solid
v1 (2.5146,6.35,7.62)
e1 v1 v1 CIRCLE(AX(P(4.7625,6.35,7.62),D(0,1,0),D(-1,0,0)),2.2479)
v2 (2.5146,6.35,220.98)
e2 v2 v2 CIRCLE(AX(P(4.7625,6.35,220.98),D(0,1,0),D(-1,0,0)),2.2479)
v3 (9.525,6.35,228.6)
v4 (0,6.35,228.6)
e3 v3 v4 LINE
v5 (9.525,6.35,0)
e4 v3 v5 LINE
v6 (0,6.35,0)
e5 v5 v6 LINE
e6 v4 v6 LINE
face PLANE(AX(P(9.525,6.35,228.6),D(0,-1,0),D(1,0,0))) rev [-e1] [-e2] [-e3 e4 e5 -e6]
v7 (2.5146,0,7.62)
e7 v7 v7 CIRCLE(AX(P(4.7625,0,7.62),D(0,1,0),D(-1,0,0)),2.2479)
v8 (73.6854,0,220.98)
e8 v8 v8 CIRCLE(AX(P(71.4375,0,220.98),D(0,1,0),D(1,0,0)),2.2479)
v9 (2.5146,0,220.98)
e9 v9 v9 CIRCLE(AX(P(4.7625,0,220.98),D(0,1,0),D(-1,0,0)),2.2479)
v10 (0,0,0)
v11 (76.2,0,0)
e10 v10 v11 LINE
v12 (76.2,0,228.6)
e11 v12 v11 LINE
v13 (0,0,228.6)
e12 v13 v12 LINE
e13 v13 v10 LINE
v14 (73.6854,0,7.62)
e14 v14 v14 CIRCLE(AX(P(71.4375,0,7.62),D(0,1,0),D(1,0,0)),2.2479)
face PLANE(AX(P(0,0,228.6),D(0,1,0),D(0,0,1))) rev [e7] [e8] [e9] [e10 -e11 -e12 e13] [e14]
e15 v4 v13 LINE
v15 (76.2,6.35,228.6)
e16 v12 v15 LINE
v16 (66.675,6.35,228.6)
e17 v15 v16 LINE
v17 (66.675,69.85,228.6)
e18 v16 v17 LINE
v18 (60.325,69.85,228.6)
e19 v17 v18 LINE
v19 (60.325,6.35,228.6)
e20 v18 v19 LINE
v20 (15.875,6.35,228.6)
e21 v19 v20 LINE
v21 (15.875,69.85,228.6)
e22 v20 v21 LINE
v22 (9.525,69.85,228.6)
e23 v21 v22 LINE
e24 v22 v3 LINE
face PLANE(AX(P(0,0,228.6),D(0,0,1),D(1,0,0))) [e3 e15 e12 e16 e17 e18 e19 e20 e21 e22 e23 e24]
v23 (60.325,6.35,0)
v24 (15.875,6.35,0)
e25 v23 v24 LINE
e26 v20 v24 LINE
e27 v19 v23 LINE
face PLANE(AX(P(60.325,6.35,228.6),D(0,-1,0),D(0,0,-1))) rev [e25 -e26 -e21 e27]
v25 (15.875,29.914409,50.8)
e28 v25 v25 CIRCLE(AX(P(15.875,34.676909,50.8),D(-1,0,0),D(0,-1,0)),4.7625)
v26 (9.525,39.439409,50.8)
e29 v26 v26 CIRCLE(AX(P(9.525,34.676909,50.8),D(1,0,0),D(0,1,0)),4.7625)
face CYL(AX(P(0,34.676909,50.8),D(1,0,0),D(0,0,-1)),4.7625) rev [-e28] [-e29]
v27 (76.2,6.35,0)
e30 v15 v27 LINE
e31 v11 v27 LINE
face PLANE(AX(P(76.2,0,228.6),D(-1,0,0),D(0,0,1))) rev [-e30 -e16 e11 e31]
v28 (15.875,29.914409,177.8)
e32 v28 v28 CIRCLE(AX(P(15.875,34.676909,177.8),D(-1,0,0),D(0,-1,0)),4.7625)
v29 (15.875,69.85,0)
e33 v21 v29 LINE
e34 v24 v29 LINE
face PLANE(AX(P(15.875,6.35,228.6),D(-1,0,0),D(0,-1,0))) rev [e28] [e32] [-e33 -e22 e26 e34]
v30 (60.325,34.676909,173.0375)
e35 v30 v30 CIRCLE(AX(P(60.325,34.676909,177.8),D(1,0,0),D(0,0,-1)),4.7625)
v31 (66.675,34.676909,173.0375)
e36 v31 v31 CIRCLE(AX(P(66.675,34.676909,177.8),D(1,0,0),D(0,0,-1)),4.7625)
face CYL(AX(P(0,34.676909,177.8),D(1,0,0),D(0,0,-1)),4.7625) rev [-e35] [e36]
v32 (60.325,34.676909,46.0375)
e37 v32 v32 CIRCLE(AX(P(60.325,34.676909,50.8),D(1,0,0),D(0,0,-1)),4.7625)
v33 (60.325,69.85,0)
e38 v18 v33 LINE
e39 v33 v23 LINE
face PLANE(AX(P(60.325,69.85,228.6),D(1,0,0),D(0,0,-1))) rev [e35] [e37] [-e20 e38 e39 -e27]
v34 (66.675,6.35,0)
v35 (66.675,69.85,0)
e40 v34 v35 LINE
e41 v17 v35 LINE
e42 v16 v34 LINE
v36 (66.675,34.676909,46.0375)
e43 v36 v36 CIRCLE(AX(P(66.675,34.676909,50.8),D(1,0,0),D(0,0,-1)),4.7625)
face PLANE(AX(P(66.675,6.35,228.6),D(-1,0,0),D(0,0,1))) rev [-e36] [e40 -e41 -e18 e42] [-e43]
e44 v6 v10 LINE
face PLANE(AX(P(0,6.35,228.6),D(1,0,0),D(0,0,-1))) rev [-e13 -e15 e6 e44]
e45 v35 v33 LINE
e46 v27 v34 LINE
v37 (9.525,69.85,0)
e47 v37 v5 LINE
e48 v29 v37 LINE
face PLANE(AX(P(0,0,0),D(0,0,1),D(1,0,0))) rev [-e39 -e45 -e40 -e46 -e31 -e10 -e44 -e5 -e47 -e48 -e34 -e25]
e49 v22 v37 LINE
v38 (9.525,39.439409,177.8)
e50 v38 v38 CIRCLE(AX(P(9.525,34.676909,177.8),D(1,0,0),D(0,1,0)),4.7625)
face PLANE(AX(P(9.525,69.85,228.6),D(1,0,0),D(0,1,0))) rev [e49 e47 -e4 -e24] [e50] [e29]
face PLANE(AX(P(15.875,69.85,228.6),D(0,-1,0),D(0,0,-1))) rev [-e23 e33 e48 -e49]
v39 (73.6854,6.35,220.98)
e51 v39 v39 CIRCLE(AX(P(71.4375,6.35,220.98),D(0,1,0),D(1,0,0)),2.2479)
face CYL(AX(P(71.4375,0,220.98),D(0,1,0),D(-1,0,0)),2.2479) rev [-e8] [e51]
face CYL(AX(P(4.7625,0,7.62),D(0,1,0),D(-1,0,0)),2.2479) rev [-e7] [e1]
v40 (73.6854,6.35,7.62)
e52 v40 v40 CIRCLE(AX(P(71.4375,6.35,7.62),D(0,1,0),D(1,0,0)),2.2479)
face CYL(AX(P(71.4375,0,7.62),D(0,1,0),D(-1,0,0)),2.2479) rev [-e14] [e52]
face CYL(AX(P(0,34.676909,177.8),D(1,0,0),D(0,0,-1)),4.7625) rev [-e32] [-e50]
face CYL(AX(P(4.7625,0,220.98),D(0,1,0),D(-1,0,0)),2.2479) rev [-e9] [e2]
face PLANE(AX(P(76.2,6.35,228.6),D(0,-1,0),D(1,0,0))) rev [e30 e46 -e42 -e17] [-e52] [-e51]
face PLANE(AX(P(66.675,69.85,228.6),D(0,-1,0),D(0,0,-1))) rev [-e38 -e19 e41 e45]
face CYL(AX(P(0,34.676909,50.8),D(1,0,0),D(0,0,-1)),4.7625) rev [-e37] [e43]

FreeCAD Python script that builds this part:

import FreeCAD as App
import Part
import Sketcher
from FreeCAD import Vector
Q = App.Units.Quantity

doc = App.newDocument("Part")
body = doc.addObject("PartDesign::Body", "Body")

# Sketch on XY plane
sketch1 = doc.addObject("Sketcher::SketchObject", "Sketch")
body.addObject(sketch1)
sketch1.AttachmentSupport = (doc.XY_Plane, [""])
sketch1.MapMode = "FlatFace"
sketch1.addGeometry(Part.LineSegment(Vector(0, 0, 0), Vector(76, 0, 0)), False)
sketch1.addGeometry(Part.LineSegment(Vector(76, 0, 0), Vector(76, 6, 0)), False)
sketch1.addGeometry(Part.LineSegment(Vector(76, 6, 0), Vector(67, 6, 0)), False)
sketch1.addGeometry(Part.LineSegment(Vector(67, 6, 0), Vector(67, 70, 0)), False)
sketch1.addGeometry(Part.LineSegment(Vector(67, 70, 0), Vector(60, 70, 0)), False)
sketch1.addGeometry(Part.LineSegment(Vector(60, 70, 0), Vector(60, 6, 0)), False)
sketch1.addGeometry(Part.LineSegment(Vector(60, 6, 0), Vector(16, 6, 0)), False)
sketch1.addGeometry(Part.LineSegment(Vector(16, 6, 0), Vector(16, 70, 0)), False)
sketch1.addGeometry(Part.LineSegment(Vector(16, 70, 0), Vector(10, 70, 0)), False)
sketch1.addGeometry(Part.LineSegment(Vector(10, 70, 0), Vector(10, 6, 0)), False)
sketch1.addGeometry(Part.LineSegment(Vector(10, 6, 0), Vector(0, 6, 0)), False)
sketch1.addGeometry(Part.LineSegment(Vector(0, 6, 0), Vector(0, 0, 0)), False)
sketch1.addConstraint(Sketcher.Constraint("Coincident", 0, 2, 1, 1))
sketch1.addConstraint(Sketcher.Constraint("Coincident", 1, 2, 2, 1))
sketch1.addConstraint(Sketcher.Constraint("Coincident", 2, 2, 3, 1))
sketch1.addConstraint(Sketcher.Constraint("Coincident", 3, 2, 4, 1))
sketch1.addConstraint(Sketcher.Constraint("Coincident", 4, 2, 5, 1))
sketch1.addConstraint(Sketcher.Constraint("Coincident", 5, 2, 6, 1))
sketch1.addConstraint(Sketcher.Constraint("Coincident", 6, 2, 7, 1))
sketch1.addConstraint(Sketcher.Constraint("Coincident", 7, 2, 8, 1))
sketch1.addConstraint(Sketcher.Constraint("Coincident", 8, 2, 9, 1))
sketch1.addConstraint(Sketcher.Constraint("Coincident", 9, 2, 10, 1))
sketch1.addConstraint(Sketcher.Constraint("Coincident", 10, 2, 11, 1))
sketch1.addConstraint(Sketcher.Constraint("Coincident", 11, 2, 0, 1))
sketch1.addConstraint(Sketcher.Constraint("Horizontal", 0))
sketch1.addConstraint(Sketcher.Constraint("Vertical", 1))
sketch1.addConstraint(Sketcher.Constraint("Horizontal", 2))
sketch1.addConstraint(Sketcher.Constraint("Vertical", 3))
sketch1.addConstraint(Sketcher.Constraint("Horizontal", 4))
sketch1.addConstraint(Sketcher.Constraint("Vertical", 5))
sketch1.addConstraint(Sketcher.Constraint("Horizontal", 6))
sketch1.addConstraint(Sketcher.Constraint("Vertical", 7))
sketch1.addConstraint(Sketcher.Constraint("Horizontal", 8))
sketch1.addConstraint(Sketcher.Constraint("Vertical", 9))
sketch1.addConstraint(Sketcher.Constraint("Horizontal", 10))
sketch1.addConstraint(Sketcher.Constraint("Vertical", 11))
sketch1.addConstraint(Sketcher.Constraint("Coincident", 11, 2, -1, 1))
sketch1.addConstraint(Sketcher.Constraint("Horizontal", 2, 2, 5, 2))
sketch1.addConstraint(Sketcher.Constraint("Horizontal", 4, 2, 7, 2))
sketch1.addConstraint(Sketcher.Constraint("Horizontal", 6, 2, 9, 2))
sketch1.addConstraint(Sketcher.Constraint("Equal", 4, 8))
sketch1.addConstraint(Sketcher.Constraint("Equal", 2, 10))
sketch1.addConstraint(Sketcher.Constraint("Equal", 8, 1))
sketch1.addConstraint(Sketcher.Constraint("DistanceX", 0, 1, 0, 2, Q("3 in")))
sketch1.addConstraint(Sketcher.Constraint("DistanceY", 3, 1, 3, 2, Q("2.5 in")))
sketch1.addConstraint(Sketcher.Constraint("DistanceX", 6, 2, 2, 2, Q("2 in")))
sketch1.addConstraint(Sketcher.Constraint("DistanceX", 4, 2, 4, 1, Q("0.25 in")))
pad1 = doc.addObject("PartDesign::Pad", "Pad")
body.addObject(pad1)
pad1.Profile = sketch1
pad1.Length = Q("9 in")

# Sketch on XZ plane
sketch2 = doc.addObject("Sketcher::SketchObject", "Sketch001")
body.addObject(sketch2)
sketch2.AttachmentSupport = (doc.XZ_Plane, [""])
sketch2.MapMode = "FlatFace"
sketch2.AttachmentOffset = App.Placement(Vector(0, 0, -0.25 * 25.4), App.Rotation())
sketch2.addGeometry(Part.Circle(Vector(4.8, 7.6, 0), Vector(0, 0, 1), 2.2), False)
sketch2.addGeometry(Part.Circle(Vector(4.8, 221, 0), Vector(0, 0, 1), 2.2), False)
sketch2.addGeometry(Part.Circle(Vector(71.4, 221, 0), Vector(0, 0, 1), 2.2), False)
sketch2.addGeometry(Part.Circle(Vector(71.4, 7.6, 0), Vector(0, 0, 1), 2.2), False)
sketch2.addConstraint(Sketcher.Constraint("Equal", 0, 1))
sketch2.addConstraint(Sketcher.Constraint("Equal", 1, 2))
sketch2.addConstraint(Sketcher.Constraint("Equal", 2, 3))
sketch2.addConstraint(Sketcher.Constraint("Horizontal", 1, 3, 2, 3))
sketch2.addConstraint(Sketcher.Constraint("Horizontal", 0, 3, 3, 3))
sketch2.addConstraint(Sketcher.Constraint("Vertical", 0, 3, 1, 3))
sketch2.addConstraint(Sketcher.Constraint("Vertical", 2, 3, 3, 3))
sketch2.addConstraint(Sketcher.Constraint("Diameter", 0, Q("0.177 in")))
sketch2.addConstraint(Sketcher.Constraint("DistanceY", -1, 1, 0, 3, Q("0.3 in")))
sketch2.addConstraint(Sketcher.Constraint("DistanceY", -1, 1, 1, 3, Q("8.7 in")))
sketch2.addConstraint(Sketcher.Constraint("DistanceX", -1, 1, 0, 3, Q("0.1875 in")))
sketch2.addConstraint(Sketcher.Constraint("DistanceX", -1, 1, 2, 3, Q("2.8125 in")))
pocket1 = doc.addObject("PartDesign::Pocket", "Pocket")
body.addObject(pocket1)
pocket1.Profile = sketch2
pocket1.Type = "ThroughAll"
pocket1.Reversed = True

# Sketch on YZ plane
sketch3 = doc.addObject("Sketcher::SketchObject", "Sketch002")
body.addObject(sketch3)
sketch3.AttachmentSupport = (doc.YZ_Plane, [""])
sketch3.MapMode = "FlatFace"
sketch3.AttachmentOffset = App.Placement(Vector(0, 0, 2.625 * 25.4), App.Rotation())
sketch3.addGeometry(Part.Circle(Vector(34.7, 177.8, 0), Vector(0, 0, 1), 4.8), False)
sketch3.addGeometry(Part.Circle(Vector(34.7, 50.8, 0), Vector(0, 0, 1), 4.8), False)
sketch3.addConstraint(Sketcher.Constraint("Equal", 0, 1))
sketch3.addConstraint(Sketcher.Constraint("Vertical", 0, 3, 1, 3))
sketch3.addConstraint(Sketcher.Constraint("Diameter", 0, Q("0.375 in")))
sketch3.addConstraint(Sketcher.Constraint("DistanceY", -1, 1, 0, 3, Q("7 in")))
sketch3.addConstraint(Sketcher.Constraint("DistanceY", -1, 1, 1, 3, Q("2 in")))
sketch3.addConstraint(Sketcher.Constraint("DistanceX", -1, 1, 0, 3, 34.676909))
pocket2 = doc.addObject("PartDesign::Pocket", "Pocket001")
body.addObject(pocket2)
pocket2.Profile = sketch3
pocket2.Type = "ThroughAll"

doc.recompute()
